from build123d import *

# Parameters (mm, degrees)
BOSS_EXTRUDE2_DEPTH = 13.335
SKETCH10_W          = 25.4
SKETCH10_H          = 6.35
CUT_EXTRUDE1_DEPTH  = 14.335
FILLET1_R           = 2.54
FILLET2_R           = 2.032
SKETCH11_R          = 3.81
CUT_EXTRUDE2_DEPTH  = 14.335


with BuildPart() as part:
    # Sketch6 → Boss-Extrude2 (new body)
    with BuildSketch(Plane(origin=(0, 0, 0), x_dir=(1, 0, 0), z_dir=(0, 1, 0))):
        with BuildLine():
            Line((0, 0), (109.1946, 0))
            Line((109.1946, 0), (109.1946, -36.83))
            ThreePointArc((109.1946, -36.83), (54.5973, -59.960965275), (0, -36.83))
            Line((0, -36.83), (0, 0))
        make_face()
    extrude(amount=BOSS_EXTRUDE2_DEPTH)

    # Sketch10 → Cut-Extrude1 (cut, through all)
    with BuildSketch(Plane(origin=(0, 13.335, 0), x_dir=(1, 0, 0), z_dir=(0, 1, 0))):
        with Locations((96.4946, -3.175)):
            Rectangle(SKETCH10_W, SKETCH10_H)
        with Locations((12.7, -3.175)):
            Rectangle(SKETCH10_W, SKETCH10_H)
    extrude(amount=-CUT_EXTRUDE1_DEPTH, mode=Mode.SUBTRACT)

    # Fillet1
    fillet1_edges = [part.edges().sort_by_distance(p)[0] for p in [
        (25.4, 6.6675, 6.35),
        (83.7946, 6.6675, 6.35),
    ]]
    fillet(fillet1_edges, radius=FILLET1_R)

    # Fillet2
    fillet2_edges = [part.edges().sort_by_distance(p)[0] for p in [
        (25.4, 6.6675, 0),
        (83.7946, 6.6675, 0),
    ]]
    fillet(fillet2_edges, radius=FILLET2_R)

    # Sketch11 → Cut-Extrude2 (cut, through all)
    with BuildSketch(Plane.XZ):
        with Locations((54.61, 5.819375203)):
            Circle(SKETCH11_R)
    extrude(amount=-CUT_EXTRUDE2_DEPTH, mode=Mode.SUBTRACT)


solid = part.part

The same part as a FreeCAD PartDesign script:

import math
import FreeCAD as App
import Part
import Sketcher
Q = App.Units.Quantity


def edges_at(feature, points):
    """Names of the edges that pass closest to the given points."""
    edges = feature.Shape.Edges
    near = lambda p: min(range(len(edges)), key=lambda i: edges[i].distToShape(Part.Vertex(*p))[0])
    return sorted({f"Edge{near(p) + 1}" for p in points})


def add_polygon(sketch, points):
    """Adds a closed chain of lines whose ends are joined by coincident constraints."""
    first, n = sketch.GeometryCount, len(points)
    for a, b in zip(points, points[1:] + points[:1]):
        sketch.addGeometry(Part.LineSegment(App.Vector(*a, 0), App.Vector(*b, 0)), False)
    for i in range(n):
        sketch.addConstraint(Sketcher.Constraint("Coincident", first + i, 2, first + (i + 1) % n, 1))

doc = App.newDocument("Part")
body = doc.addObject("PartDesign::Body", "Body")

# Sketch on XZ plane
sketch1 = body.newObject("Sketcher::SketchObject", "Sketch")
sketch1.AttachmentSupport = (doc.getObject("XZ_Plane"), [""])
sketch1.MapMode = "FlatFace"
sketch1.addGeometry(Part.LineSegment(App.Vector(109, 0, 0), App.Vector(0, 0, 0)), False)
sketch1.addGeometry(Part.LineSegment(App.Vector(0, 0, 0), App.Vector(0, 37, 0)), False)
sketch1.addGeometry(Part.ArcOfCircle(Part.Circle(App.Vector(55, -16, 0), App.Vector(0, 0, 1), 76), math.radians(44), math.radians(136)), False)
sketch1.addGeometry(Part.LineSegment(App.Vector(109, 37, 0), App.Vector(109, 0, 0)), False)
sketch1.addConstraint(Sketcher.Constraint("Coincident", 0, 2, 1, 1))
sketch1.addConstraint(Sketcher.Constraint("Coincident", 1, 2, 2, 2))
sketch1.addConstraint(Sketcher.Constraint("Coincident", 2, 1, 3, 1))
sketch1.addConstraint(Sketcher.Constraint("Coincident", 3, 2, 0, 1))
sketch1.addConstraint(Sketcher.Constraint("Horizontal", 0))
sketch1.addConstraint(Sketcher.Constraint("Vertical", 1))
sketch1.addConstraint(Sketcher.Constraint("Vertical", 3))
sketch1.addConstraint(Sketcher.Constraint("Coincident", 0, 2, -1, 1))
sketch1.addConstraint(Sketcher.Constraint("Horizontal", 1, 2, 2, 1))
sketch1.addConstraint(Sketcher.Constraint("DistanceY", 1, 1, 1, 2, Q("1.45 in")))
sketch1.addConstraint(Sketcher.Constraint("DistanceX", 0, 2, 0, 1, Q("4.299 in")))
sketch1.addConstraint(Sketcher.Constraint("Radius", 2, 76.0))
pad1 = body.newObject("PartDesign::Pad", "Pad")
pad1.Profile = sketch1
pad1.Length = Q("0.525 in")
pad1.Reversed = True

# Sketch on XZ plane
sketch2 = body.newObject("Sketcher::SketchObject", "Sketch001")
sketch2.AttachmentSupport = (doc.getObject("XZ_Plane"), [""])
sketch2.MapMode = "FlatFace"
sketch2.AttachmentOffset = App.Placement(App.Vector(0, 0, -0.525 * 25.4), App.Rotation())
add_polygon(sketch2, [(84, 0), (84, 6), (109, 6), (109, 0)])  # lines 0-3
add_polygon(sketch2, [(0, 0), (0, 6), (25, 6), (25, 0)])  # lines 4-7
sketch2.addConstraint(Sketcher.Constraint("Vertical", 0))
sketch2.addConstraint(Sketcher.Constraint("Horizontal", 1))
sketch2.addConstraint(Sketcher.Constraint("Vertical", 2))
sketch2.addConstraint(Sketcher.Constraint("Horizontal", 3))
sketch2.addConstraint(Sketcher.Constraint("Vertical", 4))
sketch2.addConstraint(Sketcher.Constraint("Horizontal", 5))
sketch2.addConstraint(Sketcher.Constraint("Vertical", 6))
sketch2.addConstraint(Sketcher.Constraint("Horizontal", 7))
sketch2.addConstraint(Sketcher.Constraint("Coincident", 7, 2, -1, 1))
sketch2.addConstraint(Sketcher.Constraint("PointOnObject", 2, 2, -1))
sketch2.addConstraint(Sketcher.Constraint("Horizontal", 1, 2, 4, 2))
sketch2.addConstraint(Sketcher.Constraint("Equal", 3, 5))
sketch2.addConstraint(Sketcher.Constraint("DistanceX", 1, 1, 1, 2, Q("1 in")))
sketch2.addConstraint(Sketcher.Constraint("DistanceY", 0, 1, 0, 2, Q("0.25 in")))
sketch2.addConstraint(Sketcher.Constraint("DistanceX", -1, 1, 0, 2, Q("3.299 in")))
pocket1 = body.newObject("PartDesign::Pocket", "Pocket")
pocket1.Profile = sketch2
pocket1.Type = "ThroughAll"
pocket1.Reversed = True
doc.recompute()

fillet = body.newObject("PartDesign::Fillet", "Fillet")
fillet.Base = (pocket1, edges_at(pocket1, [(25.4, 6.668, 6.35), (83.795, 6.668, 6.35)]))
fillet.Radius = Q("0.1 in")
doc.recompute()

fillet2 = body.newObject("PartDesign::Fillet", "Fillet001")
fillet2.Base = (fillet, edges_at(fillet, [(25.4, 6.668, 0), (83.795, 6.668, 0)]))
fillet2.Radius = Q("0.08 in")

# Sketch on XZ plane
sketch3 = body.newObject("Sketcher::SketchObject", "Sketch002")
sketch3.AttachmentSupport = (doc.getObject("XZ_Plane"), [""])
sketch3.MapMode = "FlatFace"
sketch3.addGeometry(Part.Circle(App.Vector(54.6, 5.8, 0), App.Vector(0, 0, 1), 3.8), False)
sketch3.addConstraint(Sketcher.Constraint("Diameter", 0, Q("0.3 in")))
sketch3.addConstraint(Sketcher.Constraint("DistanceX", -1, 1, 0, 3, Q("2.15 in")))
sketch3.addConstraint(Sketcher.Constraint("DistanceY", -1, 1, 0, 3, 5.819375))
pocket2 = body.newObject("PartDesign::Pocket", "Pocket001")
pocket2.Profile = sketch3
pocket2.Type = "ThroughAll"

doc.recompute()
